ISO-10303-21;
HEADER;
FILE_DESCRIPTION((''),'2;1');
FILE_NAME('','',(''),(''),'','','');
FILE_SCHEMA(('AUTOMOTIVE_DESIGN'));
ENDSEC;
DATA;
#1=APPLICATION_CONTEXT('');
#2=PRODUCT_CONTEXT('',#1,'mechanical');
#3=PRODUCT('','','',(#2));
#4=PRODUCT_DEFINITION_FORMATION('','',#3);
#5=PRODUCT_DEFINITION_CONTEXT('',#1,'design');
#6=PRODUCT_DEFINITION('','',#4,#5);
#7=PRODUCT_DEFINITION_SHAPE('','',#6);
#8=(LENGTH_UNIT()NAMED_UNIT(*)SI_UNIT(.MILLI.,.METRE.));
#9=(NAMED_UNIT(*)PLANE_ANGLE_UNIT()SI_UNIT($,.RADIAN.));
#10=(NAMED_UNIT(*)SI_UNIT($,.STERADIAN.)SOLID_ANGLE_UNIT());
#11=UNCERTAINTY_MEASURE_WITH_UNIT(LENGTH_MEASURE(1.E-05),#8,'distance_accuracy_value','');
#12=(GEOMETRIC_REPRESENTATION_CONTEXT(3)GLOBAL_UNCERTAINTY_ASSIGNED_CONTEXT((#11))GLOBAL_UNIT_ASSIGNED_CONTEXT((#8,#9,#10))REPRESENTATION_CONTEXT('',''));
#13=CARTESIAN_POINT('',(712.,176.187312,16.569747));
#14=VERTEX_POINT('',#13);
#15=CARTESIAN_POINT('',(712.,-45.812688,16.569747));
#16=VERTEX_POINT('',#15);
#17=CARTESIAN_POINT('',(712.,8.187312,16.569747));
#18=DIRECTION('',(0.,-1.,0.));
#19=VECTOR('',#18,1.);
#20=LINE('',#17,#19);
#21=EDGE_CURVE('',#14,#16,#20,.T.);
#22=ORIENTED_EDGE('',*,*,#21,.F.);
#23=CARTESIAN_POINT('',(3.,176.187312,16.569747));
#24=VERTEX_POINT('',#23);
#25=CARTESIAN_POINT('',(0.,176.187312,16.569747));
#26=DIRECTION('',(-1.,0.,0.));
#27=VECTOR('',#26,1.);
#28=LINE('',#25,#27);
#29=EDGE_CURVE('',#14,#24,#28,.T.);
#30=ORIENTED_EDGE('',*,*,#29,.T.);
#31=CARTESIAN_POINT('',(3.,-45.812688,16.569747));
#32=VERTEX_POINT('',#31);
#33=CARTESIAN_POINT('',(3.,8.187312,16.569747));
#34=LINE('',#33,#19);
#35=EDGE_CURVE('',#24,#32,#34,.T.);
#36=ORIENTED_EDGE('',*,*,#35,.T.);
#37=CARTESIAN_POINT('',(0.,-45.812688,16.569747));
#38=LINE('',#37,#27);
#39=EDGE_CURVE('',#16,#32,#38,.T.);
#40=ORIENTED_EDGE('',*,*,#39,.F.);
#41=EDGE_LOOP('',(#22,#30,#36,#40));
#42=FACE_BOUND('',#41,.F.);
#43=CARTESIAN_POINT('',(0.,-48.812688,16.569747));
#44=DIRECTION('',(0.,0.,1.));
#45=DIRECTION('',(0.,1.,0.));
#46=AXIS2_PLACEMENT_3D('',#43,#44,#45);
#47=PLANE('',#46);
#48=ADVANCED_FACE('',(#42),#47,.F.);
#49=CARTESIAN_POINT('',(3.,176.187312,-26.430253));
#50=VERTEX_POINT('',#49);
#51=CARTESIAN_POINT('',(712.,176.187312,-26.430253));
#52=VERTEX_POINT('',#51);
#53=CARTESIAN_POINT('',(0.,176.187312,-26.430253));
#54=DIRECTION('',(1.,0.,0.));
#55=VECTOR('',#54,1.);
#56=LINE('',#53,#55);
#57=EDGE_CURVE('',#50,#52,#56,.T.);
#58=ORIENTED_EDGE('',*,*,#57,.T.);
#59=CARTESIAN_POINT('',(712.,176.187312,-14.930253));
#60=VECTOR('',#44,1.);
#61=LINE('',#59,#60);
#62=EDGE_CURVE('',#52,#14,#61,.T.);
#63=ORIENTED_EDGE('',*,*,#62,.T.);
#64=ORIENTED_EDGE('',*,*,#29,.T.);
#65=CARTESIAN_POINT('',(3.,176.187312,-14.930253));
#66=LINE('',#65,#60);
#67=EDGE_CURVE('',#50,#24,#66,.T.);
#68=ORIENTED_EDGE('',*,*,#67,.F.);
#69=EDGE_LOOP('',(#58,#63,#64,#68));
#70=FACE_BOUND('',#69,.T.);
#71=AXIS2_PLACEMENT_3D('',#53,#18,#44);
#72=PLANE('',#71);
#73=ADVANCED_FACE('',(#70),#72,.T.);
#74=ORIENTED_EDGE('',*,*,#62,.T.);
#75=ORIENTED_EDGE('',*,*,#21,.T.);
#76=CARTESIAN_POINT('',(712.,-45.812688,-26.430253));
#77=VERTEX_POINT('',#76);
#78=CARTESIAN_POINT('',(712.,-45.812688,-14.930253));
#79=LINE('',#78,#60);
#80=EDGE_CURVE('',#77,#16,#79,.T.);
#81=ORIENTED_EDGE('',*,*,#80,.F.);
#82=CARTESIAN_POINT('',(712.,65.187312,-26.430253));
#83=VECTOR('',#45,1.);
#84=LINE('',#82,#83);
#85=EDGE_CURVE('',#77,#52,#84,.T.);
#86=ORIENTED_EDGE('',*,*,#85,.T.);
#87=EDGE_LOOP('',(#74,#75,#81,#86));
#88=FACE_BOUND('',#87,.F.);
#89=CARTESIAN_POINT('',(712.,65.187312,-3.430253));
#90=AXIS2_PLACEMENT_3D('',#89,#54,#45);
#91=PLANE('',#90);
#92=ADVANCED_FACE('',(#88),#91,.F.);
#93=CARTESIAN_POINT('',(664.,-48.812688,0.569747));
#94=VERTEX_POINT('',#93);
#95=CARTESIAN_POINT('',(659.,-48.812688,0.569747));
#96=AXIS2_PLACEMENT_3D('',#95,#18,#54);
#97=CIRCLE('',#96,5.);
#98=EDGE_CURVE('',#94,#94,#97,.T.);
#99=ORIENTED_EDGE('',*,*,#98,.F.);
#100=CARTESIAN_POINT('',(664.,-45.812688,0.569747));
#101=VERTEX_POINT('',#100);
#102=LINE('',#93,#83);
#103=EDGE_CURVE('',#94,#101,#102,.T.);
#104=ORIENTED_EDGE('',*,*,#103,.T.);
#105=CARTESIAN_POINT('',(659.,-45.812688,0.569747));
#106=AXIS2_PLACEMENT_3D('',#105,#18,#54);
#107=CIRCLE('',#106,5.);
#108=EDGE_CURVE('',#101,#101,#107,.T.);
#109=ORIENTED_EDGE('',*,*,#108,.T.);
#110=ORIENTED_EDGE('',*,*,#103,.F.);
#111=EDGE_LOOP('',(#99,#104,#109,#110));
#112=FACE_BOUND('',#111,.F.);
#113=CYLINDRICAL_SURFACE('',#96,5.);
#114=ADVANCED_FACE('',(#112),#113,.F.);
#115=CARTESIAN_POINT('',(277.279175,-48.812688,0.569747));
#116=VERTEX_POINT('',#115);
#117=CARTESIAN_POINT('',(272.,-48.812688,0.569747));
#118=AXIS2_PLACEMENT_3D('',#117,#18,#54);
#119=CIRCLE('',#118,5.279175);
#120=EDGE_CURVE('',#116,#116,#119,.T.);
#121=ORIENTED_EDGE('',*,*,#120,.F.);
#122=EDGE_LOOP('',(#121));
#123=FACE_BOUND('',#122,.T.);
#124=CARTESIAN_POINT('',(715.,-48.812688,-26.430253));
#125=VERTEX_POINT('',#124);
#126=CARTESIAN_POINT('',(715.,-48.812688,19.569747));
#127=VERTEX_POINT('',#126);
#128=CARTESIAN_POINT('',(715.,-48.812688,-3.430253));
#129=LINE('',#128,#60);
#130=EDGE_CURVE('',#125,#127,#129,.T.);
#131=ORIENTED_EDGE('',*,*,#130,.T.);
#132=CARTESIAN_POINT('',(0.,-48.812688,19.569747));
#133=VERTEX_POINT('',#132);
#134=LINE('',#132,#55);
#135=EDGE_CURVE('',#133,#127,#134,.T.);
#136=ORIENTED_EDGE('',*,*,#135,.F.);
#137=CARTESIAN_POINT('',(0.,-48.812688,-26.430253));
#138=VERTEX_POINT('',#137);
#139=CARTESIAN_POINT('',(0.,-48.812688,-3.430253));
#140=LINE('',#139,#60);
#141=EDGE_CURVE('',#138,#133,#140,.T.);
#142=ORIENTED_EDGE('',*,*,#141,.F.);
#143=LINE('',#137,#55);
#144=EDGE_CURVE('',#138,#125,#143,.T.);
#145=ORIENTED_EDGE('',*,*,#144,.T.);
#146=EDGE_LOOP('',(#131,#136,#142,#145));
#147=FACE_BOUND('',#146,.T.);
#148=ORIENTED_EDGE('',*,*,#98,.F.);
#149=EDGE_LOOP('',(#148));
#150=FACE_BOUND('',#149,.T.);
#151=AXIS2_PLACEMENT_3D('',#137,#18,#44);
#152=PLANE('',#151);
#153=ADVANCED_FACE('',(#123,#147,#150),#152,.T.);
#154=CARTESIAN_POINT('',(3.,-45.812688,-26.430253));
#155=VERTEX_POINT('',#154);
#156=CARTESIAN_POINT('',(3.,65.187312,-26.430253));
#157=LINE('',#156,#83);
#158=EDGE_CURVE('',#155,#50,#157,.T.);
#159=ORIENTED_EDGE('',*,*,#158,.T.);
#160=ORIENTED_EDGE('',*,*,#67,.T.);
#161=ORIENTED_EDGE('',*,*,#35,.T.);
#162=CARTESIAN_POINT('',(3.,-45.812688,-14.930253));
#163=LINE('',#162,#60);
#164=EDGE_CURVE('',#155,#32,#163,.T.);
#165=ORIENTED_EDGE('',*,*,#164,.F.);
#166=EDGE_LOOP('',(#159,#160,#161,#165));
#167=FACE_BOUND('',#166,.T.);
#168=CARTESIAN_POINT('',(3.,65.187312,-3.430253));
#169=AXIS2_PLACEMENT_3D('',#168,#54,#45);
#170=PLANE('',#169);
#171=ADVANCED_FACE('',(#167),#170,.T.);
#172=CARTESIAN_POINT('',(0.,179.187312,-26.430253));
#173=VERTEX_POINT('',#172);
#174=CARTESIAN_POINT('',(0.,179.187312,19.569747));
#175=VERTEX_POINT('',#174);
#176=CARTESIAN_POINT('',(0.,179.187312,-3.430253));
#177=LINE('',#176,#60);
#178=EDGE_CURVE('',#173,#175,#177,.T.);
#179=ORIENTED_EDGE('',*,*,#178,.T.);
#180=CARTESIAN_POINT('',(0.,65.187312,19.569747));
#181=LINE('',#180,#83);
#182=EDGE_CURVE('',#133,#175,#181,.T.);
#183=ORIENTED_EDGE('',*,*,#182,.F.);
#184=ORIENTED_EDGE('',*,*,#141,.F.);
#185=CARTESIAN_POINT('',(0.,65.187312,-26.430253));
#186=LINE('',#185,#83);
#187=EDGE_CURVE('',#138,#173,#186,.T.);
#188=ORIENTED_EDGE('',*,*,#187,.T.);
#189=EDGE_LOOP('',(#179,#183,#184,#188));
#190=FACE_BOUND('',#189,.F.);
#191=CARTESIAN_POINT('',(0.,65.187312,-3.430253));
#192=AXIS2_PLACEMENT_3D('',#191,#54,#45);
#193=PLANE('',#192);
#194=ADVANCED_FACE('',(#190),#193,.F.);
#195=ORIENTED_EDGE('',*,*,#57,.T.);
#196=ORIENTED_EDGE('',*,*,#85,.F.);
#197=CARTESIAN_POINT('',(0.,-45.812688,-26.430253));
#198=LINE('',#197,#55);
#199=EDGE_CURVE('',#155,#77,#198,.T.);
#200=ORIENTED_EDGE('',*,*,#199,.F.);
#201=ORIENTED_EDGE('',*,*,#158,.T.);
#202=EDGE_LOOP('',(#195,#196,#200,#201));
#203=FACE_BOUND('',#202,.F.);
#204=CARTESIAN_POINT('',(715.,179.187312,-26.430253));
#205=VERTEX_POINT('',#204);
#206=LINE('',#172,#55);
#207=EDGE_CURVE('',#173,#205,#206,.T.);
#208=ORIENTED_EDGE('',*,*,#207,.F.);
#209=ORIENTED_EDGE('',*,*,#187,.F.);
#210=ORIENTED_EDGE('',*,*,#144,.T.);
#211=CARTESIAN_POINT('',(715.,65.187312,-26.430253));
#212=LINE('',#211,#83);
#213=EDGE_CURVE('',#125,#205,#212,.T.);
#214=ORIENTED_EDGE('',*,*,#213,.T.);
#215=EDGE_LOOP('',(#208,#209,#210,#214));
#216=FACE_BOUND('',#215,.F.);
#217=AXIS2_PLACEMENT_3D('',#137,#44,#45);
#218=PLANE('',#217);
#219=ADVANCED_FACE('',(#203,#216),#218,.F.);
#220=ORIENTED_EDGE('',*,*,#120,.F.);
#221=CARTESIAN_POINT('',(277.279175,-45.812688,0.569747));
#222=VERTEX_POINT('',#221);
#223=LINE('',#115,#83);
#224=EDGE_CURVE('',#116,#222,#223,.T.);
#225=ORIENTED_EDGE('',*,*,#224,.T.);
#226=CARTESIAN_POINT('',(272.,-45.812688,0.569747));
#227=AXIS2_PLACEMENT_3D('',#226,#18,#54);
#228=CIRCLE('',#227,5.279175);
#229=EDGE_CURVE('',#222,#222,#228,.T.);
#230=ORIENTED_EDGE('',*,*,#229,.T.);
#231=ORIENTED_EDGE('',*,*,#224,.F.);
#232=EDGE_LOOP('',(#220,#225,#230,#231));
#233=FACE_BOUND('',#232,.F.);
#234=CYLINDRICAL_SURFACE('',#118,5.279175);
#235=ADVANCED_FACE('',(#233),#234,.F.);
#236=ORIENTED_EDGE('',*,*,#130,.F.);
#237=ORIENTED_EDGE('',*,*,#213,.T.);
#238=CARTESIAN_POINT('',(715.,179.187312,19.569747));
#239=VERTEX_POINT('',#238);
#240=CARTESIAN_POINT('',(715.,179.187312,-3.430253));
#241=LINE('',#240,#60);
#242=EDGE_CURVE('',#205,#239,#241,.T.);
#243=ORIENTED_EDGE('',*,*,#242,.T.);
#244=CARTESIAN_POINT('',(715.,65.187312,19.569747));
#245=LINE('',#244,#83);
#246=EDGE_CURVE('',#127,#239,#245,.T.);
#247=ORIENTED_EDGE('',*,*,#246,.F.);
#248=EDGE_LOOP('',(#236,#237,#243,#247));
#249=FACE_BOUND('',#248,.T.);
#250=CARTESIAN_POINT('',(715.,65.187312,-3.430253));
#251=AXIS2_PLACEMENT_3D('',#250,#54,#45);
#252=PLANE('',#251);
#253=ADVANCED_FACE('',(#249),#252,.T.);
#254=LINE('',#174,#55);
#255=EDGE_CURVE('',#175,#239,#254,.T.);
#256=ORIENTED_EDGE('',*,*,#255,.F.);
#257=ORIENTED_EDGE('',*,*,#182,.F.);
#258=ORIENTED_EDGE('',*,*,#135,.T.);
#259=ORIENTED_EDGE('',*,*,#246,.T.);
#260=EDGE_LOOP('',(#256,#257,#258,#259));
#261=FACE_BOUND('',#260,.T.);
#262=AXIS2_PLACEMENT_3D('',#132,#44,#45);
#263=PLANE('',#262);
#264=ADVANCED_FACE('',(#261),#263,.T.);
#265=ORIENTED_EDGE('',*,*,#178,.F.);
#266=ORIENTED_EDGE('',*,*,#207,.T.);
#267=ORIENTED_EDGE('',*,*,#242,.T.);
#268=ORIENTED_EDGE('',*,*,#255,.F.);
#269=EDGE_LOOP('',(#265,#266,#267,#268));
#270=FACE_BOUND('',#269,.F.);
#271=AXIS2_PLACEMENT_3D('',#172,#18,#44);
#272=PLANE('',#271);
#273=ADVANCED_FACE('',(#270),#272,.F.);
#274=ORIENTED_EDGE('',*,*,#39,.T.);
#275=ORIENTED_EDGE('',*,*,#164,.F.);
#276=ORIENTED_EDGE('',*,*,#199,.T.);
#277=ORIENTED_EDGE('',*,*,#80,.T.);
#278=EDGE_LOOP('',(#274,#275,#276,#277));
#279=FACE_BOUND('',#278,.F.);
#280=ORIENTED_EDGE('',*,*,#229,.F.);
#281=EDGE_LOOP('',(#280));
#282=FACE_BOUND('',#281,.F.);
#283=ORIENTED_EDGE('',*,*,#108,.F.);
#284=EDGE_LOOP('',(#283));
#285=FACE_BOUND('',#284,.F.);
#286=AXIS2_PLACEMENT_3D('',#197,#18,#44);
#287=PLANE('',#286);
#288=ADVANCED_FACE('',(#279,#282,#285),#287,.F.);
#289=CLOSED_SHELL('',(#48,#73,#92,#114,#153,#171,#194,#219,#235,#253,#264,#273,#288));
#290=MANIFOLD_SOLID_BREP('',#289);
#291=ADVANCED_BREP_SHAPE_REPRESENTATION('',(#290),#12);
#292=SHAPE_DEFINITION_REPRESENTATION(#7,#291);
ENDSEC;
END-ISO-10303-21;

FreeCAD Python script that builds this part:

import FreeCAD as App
import Part
import Sketcher

V = App.Vector
Q = App.Units.Quantity


def faces_at(feature, points):
    """Names of the faces that lie closest to the given points."""
    faces = feature.Shape.Faces
    near = lambda p: min(range(len(faces)), key=lambda i: faces[i].distToShape(Part.Vertex(*p))[0])
    return sorted({f"Face{near(p) + 1}" for p in points})

doc = App.newDocument("Part")
params = doc.addObject("Spreadsheet::Sheet", "Params")
for row, (alias, value) in enumerate([
    ("sketch1_width", "228 mm"),
    ("sketch1_height", "46 mm"),
    ("pad1_length", "715 mm"),
    ("thickness_wall", "3 mm"),
    ("sketch2_diameter", "10 mm"),
    ("pocket1_length", "3 mm"),
], start=1):
    params.set(f"A{row}", alias)
    params.set(f"B{row}", "=" + value)
    params.setAlias(f"B{row}", alias)

body = doc.addObject("PartDesign::Body", "Body")

# Sketch on YZ plane
sketch1 = doc.addObject("Sketcher::SketchObject", "Sketch")
body.addObject(sketch1)
sketch1.AttachmentSupport = (doc.YZ_Plane, [""])
sketch1.MapMode = "FlatFace"
sketch1.addGeometry([
    Part.LineSegment(V(-49, 20, 0), V(-49, -26, 0)),
    Part.LineSegment(V(-49, -26, 0), V(179, -26, 0)),
    Part.LineSegment(V(179, -26, 0), V(179, 20, 0)),
    Part.LineSegment(V(179, 20, 0), V(-49, 20, 0)),
], False)
sketch1.addConstraint([
    Sketcher.Constraint("Coincident", 0, 2, 1, 1),
    Sketcher.Constraint("Coincident", 1, 2, 2, 1),
    Sketcher.Constraint("Coincident", 2, 2, 3, 1),
    Sketcher.Constraint("Coincident", 3, 2, 0, 1),
    Sketcher.Constraint("Vertical", 0),
    Sketcher.Constraint("Horizontal", 1),
    Sketcher.Constraint("Vertical", 2),
    Sketcher.Constraint("Horizontal", 3),
    Sketcher.Constraint("DistanceX", 1, 1, 1, 2, Q("228 mm")),
    Sketcher.Constraint("DistanceY", 0, 2, 0, 1, Q("46 mm")),
    Sketcher.Constraint("DistanceX", -1, 1, 1, 2, Q("179.187312 mm")),
    Sketcher.Constraint("DistanceY", 0, 2, -1, 1, Q("26.430253 mm")),
])
sketch1.setExpression("Constraints[8]", "Params.sketch1_width")
sketch1.setExpression("Constraints[9]", "Params.sketch1_height")
pad1 = doc.addObject("PartDesign::Pad", "Pad")
body.addObject(pad1)
pad1.Profile = sketch1
pad1.setExpression("Length", "Params.pad1_length")
doc.recompute()

thickness = doc.addObject("PartDesign::Thickness", "Thickness")
body.addObject(thickness)
thickness.Base = (pad1, faces_at(pad1, [(357.5, 65.187, -26.43)]))
thickness.setExpression("Value", "Params.thickness_wall")
thickness.Reversed = True
thickness.Join = "Arc"

# Sketch on XZ plane
sketch2 = doc.addObject("Sketcher::SketchObject", "Sketch001")
body.addObject(sketch2)
sketch2.AttachmentSupport = (doc.XZ_Plane, [""])
sketch2.MapMode = "FlatFace"
sketch2.AttachmentOffset = App.Placement(V(0, 0, 48.812688), App.Rotation())
sketch2.addGeometry([
    Part.Circle(V(659, 1, 0), V(0, 0, 1), 5),
    Part.Circle(V(272, 1, 0), V(0, 0, 1), 5),
], False)
sketch2.addConstraint([
    Sketcher.Constraint("Horizontal", 0, 3, 1, 3),
    Sketcher.Constraint("Diameter", 0, Q("10 mm")),
    Sketcher.Constraint("DistanceX", -1, 1, 0, 3, Q("659 mm")),
    Sketcher.Constraint("DistanceX", -1, 1, 1, 3, Q("272 mm")),
    Sketcher.Constraint("Diameter", 1, Q("10.55835 mm")),
    Sketcher.Constraint("DistanceY", -1, 1, 0, 3, Q("0.569747 mm")),
])
sketch2.setExpression("Constraints[1]", "Params.sketch2_diameter")
pocket1 = doc.addObject("PartDesign::Pocket", "Pocket")
body.addObject(pocket1)
pocket1.Profile = sketch2
pocket1.setExpression("Length", "Params.pocket1_length")

doc.recompute()
